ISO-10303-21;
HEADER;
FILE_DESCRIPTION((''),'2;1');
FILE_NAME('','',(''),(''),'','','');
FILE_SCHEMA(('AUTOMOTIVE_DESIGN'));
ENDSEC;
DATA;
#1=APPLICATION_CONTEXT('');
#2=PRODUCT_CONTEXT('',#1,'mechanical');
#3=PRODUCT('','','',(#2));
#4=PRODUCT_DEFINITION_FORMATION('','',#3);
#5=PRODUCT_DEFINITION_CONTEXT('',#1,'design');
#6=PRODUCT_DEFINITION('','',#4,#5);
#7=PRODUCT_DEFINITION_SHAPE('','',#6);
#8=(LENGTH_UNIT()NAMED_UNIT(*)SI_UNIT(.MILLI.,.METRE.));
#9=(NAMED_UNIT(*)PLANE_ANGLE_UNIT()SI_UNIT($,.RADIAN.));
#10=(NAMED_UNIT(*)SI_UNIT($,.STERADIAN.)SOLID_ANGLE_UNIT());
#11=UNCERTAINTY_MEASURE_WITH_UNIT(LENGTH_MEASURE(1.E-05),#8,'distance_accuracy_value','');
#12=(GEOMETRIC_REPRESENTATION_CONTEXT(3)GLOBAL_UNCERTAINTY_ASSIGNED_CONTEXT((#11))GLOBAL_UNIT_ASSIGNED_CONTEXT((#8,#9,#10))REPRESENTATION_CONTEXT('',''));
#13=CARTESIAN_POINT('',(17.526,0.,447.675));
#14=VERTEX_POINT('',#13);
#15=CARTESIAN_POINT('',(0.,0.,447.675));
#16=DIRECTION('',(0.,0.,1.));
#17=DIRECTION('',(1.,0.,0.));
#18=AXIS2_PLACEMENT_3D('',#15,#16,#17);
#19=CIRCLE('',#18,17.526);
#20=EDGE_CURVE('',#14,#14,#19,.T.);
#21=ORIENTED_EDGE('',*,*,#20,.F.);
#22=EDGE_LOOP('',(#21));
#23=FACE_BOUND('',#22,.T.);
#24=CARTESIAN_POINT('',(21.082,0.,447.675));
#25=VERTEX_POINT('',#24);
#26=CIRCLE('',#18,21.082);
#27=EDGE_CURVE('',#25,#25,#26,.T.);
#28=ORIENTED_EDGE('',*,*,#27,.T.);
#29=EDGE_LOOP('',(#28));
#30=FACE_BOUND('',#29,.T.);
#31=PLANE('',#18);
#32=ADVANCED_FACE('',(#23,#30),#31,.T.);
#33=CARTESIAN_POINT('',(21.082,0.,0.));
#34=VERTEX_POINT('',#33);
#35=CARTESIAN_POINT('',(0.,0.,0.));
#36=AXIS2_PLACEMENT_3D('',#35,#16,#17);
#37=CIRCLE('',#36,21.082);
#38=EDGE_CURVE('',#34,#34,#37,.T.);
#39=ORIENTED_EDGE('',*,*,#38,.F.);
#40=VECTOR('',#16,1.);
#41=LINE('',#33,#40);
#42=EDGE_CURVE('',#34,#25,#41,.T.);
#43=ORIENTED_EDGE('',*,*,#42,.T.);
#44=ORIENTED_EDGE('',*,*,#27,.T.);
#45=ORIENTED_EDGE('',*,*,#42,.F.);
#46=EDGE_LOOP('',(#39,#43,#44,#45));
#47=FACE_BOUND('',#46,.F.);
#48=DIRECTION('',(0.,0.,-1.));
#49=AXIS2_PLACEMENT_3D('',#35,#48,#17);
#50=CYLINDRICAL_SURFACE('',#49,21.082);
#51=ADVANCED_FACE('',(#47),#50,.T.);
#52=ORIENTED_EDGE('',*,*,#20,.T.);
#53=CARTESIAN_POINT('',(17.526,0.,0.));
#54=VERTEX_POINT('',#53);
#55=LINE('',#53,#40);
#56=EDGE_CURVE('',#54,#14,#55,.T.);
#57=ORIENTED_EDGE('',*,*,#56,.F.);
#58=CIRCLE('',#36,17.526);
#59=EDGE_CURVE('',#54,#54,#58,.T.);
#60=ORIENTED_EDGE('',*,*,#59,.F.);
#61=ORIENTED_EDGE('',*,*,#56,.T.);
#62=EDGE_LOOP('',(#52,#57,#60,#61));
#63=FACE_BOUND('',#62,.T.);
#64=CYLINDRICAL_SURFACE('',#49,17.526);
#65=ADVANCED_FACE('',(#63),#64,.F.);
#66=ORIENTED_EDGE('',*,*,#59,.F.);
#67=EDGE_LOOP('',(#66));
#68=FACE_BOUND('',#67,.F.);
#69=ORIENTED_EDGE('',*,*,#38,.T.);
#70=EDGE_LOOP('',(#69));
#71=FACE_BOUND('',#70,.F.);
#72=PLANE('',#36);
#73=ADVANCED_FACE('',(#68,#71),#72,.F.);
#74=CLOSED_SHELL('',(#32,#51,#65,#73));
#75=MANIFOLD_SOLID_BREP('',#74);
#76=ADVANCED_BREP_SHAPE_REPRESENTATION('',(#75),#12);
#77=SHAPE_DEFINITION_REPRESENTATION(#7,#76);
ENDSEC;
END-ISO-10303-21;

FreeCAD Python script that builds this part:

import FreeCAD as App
import Part
import Sketcher

V = App.Vector
Q = App.Units.Quantity

doc = App.newDocument("Part")
body = doc.addObject("PartDesign::Body", "Body")

sketch1 = body.newObject("Sketcher::SketchObject", "Sketch")
sketch1.AttachmentSupport = (doc.getObject("XY_Plane"), [""])
sketch1.MapMode = "FlatFace"
sketch1.addGeometry(Part.Circle(V(0, 0, 0), V(0, 0, 1), 21), False)
sketch1.addGeometry(Part.Circle(V(0, 0, 0), V(0, 0, 1), 18), False)
sketch1.addConstraint(Sketcher.Constraint("Coincident", 0, 3, -1, 1))
sketch1.addConstraint(Sketcher.Constraint("Coincident", 1, 3, -1, 1))
sketch1.addConstraint(Sketcher.Constraint("Diameter", 0, Q("1.66 in")))
sketch1.addConstraint(Sketcher.Constraint("Diameter", 1, Q("1.38 in")))
pad1 = body.newObject("PartDesign::Pad", "Pad")
pad1.Profile = sketch1
pad1.Length = Q("17.625 in")

doc.recompute()
